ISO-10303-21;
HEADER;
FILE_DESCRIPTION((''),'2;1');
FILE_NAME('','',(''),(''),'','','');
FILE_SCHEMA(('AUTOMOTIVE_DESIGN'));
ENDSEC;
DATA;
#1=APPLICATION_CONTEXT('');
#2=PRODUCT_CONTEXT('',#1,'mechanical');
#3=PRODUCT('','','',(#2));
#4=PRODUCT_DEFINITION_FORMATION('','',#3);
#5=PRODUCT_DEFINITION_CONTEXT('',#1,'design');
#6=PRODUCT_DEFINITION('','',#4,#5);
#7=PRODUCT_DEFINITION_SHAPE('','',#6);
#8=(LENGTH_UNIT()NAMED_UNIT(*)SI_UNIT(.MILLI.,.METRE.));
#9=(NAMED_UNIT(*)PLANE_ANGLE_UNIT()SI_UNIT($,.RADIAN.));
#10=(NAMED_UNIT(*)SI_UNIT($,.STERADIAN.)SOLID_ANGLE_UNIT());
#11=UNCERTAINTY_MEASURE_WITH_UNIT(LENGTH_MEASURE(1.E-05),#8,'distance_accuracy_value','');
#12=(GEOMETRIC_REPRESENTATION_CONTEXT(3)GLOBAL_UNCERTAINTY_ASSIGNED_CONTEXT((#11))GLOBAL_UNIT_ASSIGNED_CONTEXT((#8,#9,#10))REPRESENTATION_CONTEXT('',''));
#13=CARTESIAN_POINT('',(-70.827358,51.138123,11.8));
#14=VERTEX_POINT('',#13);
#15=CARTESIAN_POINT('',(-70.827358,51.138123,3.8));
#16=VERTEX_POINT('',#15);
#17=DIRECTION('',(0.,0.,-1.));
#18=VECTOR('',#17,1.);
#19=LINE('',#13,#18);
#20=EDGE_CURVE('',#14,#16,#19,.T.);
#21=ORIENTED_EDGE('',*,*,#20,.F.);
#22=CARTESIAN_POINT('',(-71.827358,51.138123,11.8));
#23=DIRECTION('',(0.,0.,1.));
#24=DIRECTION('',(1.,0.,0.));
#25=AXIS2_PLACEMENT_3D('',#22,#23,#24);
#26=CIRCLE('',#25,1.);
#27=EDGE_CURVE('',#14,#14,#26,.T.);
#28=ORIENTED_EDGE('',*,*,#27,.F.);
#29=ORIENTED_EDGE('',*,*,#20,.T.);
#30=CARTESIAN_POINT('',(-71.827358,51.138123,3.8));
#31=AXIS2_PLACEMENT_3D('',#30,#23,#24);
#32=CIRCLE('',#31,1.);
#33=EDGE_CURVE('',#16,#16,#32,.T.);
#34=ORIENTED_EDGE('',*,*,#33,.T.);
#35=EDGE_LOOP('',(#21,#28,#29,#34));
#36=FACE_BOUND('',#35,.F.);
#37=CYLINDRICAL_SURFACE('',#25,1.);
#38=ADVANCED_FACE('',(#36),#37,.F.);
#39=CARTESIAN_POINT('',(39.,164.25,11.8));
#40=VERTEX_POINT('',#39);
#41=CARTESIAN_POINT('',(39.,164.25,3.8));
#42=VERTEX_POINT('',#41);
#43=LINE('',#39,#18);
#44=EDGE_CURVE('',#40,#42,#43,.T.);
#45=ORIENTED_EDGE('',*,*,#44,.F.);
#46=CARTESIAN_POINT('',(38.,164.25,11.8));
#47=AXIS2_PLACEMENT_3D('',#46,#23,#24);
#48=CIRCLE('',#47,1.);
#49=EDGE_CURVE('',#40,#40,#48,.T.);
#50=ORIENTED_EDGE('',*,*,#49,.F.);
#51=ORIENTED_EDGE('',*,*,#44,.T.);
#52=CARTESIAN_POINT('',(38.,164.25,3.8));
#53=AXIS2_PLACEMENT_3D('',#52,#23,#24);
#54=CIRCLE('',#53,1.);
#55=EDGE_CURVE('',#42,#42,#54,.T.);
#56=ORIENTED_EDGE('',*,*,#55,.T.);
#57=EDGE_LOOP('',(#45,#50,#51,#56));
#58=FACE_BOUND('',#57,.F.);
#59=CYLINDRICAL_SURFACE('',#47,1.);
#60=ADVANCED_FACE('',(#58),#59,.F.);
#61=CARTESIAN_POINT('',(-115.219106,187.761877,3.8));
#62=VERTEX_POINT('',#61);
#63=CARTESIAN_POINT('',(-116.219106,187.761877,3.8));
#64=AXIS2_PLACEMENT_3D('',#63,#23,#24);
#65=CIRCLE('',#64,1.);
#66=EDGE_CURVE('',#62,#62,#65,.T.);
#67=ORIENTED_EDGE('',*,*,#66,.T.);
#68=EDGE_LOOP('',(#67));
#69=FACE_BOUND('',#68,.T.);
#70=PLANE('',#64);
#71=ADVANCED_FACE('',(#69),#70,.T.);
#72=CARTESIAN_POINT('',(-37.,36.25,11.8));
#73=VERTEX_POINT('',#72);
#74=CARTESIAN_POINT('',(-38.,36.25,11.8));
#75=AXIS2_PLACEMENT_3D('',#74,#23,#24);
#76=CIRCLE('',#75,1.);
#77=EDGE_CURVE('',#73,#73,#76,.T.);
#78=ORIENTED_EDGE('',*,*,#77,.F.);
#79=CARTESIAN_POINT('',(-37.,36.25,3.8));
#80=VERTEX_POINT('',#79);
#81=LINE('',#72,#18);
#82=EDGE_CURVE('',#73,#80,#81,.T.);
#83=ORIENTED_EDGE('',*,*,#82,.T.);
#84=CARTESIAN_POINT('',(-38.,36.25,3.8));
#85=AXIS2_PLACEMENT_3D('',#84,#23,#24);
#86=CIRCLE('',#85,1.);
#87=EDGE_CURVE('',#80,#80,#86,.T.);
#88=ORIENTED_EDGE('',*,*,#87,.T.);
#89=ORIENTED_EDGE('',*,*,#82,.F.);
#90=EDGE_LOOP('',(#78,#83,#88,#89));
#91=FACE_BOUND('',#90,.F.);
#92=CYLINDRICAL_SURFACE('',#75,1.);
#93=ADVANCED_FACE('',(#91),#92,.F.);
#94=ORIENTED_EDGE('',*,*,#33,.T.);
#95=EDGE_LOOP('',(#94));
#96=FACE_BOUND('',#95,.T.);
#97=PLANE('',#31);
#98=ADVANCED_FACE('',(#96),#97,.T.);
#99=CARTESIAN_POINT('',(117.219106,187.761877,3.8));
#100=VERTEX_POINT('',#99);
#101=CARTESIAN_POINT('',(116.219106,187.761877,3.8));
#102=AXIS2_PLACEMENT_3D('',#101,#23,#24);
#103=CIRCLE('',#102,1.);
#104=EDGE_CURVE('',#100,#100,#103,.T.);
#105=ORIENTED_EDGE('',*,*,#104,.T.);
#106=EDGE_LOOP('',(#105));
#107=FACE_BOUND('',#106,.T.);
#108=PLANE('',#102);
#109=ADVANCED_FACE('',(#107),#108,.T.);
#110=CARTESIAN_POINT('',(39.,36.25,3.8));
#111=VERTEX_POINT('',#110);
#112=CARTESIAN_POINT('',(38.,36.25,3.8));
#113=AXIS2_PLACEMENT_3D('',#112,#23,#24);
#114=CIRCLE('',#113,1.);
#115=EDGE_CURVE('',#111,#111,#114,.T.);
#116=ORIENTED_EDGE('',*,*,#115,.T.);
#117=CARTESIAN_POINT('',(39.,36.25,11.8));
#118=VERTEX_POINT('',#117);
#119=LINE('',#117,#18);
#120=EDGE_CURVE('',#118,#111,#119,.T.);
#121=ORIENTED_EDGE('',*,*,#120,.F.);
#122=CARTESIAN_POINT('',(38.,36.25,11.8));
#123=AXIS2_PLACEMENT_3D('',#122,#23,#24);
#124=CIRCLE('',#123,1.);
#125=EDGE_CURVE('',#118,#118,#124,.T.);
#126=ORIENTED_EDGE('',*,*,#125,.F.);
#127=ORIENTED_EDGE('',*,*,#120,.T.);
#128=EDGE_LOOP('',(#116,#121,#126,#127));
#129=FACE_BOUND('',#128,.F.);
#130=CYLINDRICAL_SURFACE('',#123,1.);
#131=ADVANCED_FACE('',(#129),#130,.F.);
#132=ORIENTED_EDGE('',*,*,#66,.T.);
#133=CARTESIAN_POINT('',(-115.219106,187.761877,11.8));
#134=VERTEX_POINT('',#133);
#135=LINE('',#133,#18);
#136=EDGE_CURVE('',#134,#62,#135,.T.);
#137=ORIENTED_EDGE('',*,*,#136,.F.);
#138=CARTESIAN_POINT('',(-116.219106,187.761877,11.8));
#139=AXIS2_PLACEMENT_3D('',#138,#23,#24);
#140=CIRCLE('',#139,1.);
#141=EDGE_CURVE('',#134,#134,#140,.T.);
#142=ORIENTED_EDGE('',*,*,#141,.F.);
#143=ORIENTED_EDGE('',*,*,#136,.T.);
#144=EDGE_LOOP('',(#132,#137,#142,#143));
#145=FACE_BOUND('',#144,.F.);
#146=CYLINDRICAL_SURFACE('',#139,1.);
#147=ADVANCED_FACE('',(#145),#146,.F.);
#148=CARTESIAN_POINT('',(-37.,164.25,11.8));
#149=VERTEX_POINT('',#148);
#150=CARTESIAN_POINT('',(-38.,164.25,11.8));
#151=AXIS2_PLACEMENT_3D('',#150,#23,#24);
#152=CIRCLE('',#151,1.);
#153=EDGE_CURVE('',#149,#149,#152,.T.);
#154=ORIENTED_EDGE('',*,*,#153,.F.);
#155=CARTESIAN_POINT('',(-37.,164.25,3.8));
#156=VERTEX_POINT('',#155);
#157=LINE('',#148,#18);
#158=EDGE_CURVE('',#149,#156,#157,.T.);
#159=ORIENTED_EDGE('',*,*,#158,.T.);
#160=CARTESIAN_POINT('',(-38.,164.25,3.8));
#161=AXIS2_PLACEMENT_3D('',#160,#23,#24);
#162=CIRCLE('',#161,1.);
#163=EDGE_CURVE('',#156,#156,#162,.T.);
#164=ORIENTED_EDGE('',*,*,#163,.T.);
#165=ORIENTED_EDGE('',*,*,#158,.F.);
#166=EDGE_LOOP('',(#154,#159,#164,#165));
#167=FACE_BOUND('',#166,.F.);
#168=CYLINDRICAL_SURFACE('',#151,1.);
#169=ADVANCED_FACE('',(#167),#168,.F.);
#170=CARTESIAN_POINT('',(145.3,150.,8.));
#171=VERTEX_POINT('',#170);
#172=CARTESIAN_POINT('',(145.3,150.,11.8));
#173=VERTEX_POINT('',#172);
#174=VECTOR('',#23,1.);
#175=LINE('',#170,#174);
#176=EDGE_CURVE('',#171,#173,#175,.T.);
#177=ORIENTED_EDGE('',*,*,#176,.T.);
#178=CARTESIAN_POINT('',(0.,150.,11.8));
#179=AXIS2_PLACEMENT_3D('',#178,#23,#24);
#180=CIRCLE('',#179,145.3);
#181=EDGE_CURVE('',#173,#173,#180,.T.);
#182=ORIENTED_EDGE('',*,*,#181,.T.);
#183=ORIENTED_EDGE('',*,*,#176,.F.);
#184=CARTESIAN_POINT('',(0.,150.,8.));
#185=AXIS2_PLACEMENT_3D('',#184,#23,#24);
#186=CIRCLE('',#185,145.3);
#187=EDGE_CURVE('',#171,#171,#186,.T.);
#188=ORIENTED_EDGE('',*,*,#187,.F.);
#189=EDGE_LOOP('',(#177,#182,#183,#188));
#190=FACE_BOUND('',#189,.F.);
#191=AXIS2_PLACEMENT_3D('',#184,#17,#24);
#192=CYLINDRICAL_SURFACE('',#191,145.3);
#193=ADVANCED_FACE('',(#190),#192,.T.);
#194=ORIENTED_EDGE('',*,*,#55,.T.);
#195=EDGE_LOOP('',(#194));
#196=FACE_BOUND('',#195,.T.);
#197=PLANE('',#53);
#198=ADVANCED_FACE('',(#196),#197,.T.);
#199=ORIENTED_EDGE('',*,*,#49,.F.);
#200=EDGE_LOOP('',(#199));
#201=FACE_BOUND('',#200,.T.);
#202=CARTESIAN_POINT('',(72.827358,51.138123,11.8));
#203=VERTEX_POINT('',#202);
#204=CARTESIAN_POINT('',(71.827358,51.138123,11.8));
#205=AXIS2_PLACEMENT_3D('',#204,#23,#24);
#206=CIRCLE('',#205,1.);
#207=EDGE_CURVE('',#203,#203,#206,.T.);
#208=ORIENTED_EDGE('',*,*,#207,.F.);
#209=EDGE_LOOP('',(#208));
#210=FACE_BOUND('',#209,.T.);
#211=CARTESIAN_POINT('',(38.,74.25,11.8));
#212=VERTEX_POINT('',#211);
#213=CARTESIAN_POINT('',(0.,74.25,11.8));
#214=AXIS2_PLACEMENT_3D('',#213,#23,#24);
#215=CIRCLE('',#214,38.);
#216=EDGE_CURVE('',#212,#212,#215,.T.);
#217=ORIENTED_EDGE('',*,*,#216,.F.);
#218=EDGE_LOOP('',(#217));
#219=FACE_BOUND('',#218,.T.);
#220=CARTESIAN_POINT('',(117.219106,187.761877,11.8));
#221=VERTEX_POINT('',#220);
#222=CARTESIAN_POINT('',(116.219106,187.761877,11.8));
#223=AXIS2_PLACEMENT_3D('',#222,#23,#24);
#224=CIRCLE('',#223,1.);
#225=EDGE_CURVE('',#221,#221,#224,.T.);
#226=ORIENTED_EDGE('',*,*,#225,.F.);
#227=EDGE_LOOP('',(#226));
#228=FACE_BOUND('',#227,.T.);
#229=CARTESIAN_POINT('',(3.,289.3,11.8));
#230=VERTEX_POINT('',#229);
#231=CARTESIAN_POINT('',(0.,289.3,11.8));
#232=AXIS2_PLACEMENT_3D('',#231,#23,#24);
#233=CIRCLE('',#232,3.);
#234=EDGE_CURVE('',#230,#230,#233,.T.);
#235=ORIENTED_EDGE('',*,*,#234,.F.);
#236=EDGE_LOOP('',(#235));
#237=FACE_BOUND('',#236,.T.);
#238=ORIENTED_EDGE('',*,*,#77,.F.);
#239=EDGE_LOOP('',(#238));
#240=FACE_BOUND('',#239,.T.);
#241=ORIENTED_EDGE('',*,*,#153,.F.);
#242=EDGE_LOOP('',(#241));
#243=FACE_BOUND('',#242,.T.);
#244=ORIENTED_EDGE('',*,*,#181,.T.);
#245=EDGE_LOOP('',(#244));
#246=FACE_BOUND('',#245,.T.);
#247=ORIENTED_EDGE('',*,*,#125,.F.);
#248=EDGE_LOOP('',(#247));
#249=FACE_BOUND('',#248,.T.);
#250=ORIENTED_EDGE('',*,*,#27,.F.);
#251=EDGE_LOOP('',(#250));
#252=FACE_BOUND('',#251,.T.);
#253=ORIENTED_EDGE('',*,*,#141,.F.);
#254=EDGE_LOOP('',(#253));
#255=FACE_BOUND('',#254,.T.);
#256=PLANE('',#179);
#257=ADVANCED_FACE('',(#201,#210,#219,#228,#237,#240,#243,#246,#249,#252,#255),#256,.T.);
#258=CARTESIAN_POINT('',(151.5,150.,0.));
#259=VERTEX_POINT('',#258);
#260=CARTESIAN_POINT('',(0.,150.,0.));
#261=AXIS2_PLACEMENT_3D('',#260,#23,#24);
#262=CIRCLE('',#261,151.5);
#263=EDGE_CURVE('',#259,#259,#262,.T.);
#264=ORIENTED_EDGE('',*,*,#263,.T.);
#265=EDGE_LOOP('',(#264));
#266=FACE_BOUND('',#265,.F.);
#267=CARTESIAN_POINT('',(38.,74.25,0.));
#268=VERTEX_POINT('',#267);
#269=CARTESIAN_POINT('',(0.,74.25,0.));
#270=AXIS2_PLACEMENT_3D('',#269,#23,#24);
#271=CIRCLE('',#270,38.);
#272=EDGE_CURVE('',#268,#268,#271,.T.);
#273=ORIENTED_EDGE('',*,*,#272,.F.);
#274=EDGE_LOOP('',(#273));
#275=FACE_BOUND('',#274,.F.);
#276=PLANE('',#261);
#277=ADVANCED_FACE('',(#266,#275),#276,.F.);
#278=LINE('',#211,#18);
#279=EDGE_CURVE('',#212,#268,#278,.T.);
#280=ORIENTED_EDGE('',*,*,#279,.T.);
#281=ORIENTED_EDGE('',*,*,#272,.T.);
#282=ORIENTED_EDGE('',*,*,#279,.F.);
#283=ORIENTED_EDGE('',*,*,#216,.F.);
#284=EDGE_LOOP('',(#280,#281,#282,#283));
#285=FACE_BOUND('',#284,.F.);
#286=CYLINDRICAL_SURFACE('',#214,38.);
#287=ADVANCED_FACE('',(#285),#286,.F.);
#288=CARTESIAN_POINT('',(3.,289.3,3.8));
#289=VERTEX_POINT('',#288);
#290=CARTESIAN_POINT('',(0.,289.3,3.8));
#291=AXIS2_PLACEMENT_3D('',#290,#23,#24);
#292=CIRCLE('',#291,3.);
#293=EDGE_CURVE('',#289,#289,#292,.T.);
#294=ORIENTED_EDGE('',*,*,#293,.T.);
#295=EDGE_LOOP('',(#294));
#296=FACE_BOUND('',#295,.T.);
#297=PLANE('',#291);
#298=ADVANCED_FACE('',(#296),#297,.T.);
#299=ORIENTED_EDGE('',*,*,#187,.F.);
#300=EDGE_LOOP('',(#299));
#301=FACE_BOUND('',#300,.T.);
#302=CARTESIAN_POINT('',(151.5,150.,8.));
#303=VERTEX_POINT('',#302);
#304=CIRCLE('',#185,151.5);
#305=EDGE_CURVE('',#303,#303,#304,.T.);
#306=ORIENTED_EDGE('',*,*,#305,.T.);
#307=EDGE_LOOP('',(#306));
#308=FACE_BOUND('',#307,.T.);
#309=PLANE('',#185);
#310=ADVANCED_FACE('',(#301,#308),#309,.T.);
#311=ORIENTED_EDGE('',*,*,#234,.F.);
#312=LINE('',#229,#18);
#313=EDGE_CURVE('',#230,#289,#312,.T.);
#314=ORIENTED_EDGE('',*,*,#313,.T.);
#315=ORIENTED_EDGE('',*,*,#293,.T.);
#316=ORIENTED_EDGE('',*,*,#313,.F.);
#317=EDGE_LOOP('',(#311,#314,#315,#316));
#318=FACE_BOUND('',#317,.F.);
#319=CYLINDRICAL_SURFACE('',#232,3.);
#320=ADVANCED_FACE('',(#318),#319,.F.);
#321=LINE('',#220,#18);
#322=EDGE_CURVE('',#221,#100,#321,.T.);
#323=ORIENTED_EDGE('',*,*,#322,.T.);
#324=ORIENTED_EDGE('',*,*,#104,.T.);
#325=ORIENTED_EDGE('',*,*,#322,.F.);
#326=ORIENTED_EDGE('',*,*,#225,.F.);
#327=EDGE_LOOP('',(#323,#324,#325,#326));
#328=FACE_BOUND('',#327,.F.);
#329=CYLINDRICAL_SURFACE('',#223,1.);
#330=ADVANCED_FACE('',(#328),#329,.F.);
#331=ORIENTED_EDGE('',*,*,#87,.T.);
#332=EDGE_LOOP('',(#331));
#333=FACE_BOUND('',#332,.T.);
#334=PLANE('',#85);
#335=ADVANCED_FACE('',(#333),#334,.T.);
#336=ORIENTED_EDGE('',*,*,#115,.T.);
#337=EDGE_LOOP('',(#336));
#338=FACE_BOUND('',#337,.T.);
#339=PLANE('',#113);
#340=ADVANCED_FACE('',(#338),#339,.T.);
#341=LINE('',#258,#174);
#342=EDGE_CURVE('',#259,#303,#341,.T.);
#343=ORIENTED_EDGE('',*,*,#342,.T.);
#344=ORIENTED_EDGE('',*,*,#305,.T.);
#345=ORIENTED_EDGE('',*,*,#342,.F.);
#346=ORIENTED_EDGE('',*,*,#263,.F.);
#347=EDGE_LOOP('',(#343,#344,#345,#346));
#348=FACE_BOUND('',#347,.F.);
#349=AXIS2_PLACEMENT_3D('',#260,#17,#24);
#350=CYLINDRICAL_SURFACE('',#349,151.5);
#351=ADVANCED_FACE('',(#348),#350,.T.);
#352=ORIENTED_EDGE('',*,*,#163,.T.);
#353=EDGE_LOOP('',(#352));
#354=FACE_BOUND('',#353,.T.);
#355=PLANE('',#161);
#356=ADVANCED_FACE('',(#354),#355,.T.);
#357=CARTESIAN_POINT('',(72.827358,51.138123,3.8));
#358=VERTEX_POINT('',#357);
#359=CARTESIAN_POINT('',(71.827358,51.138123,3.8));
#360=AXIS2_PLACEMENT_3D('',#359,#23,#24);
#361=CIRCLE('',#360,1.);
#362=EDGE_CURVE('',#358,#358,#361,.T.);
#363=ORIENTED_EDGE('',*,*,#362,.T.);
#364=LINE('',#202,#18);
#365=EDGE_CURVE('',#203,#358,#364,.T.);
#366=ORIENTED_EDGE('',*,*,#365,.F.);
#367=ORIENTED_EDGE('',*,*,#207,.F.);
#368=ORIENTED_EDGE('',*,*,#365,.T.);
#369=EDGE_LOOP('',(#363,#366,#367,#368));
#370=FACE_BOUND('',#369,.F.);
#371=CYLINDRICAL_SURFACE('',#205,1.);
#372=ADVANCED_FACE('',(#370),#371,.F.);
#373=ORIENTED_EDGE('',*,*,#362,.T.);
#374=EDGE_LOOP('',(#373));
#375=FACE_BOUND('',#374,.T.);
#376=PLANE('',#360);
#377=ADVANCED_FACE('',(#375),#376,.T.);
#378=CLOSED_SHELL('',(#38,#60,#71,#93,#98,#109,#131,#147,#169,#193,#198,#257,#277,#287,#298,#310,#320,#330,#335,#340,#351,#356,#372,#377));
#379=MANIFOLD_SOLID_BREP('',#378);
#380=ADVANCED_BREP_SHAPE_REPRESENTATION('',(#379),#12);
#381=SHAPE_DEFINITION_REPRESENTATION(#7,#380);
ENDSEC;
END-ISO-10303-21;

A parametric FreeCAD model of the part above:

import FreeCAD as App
import Part
import Sketcher
from FreeCAD import Vector

doc = App.newDocument("Part")
body = doc.addObject("PartDesign::Body", "Body")

sketch1 = body.newObject("Sketcher::SketchObject", "Sketch")
sketch1.AttachmentSupport = (doc.getObject("XY_Plane"), [""])
sketch1.MapMode = "FlatFace"
sketch1.addGeometry(Part.Circle(Vector(0, 0, 0), Vector(0, 0, 1), 152), False)
sketch1.addConstraint(Sketcher.Constraint("Coincident", 0, 3, -1, 1))
sketch1.addConstraint(Sketcher.Constraint("Diameter", 0, 303.0))
pad1 = body.newObject("PartDesign::Pad", "Pad")
pad1.Profile = sketch1
pad1.Length = 8

sketch2 = body.newObject("Sketcher::SketchObject", "Sketch001")
sketch2.AttachmentSupport = (doc.getObject("XY_Plane"), [""])
sketch2.MapMode = "FlatFace"
sketch2.AttachmentOffset = App.Placement(Vector(0, 0, 8), App.Rotation())
sketch2.addGeometry(Part.Circle(Vector(0, 0, 0), Vector(0, 0, 1), 145), False)
sketch2.addConstraint(Sketcher.Constraint("Coincident", 0, 3, -1, 1))
sketch2.addConstraint(Sketcher.Constraint("Diameter", 0, 290.6))
pad2 = body.newObject("PartDesign::Pad", "Pad001")
pad2.Profile = sketch2
pad2.Length = 3.8

sketch3 = body.newObject("Sketcher::SketchObject", "Sketch002")
sketch3.AttachmentSupport = (doc.getObject("XY_Plane"), [""])
sketch3.MapMode = "FlatFace"
sketch3.AttachmentOffset = App.Placement(Vector(0, 0, 11.8), App.Rotation())
sketch3.addGeometry(Part.Circle(Vector(-38, -113.8, 0), Vector(0, 0, 1), 1), False)
sketch3.addGeometry(Part.Circle(Vector(-71.8, -98.9, 0), Vector(0, 0, 1), 1), False)
sketch3.addGeometry(Part.Circle(Vector(38, -113.8, 0), Vector(0, 0, 1), 1), False)
sketch3.addGeometry(Part.Circle(Vector(71.8, -98.9, 0), Vector(0, 0, 1), 1), False)
sketch3.addGeometry(Part.Circle(Vector(38, 14.2, 0), Vector(0, 0, 1), 1), False)
sketch3.addGeometry(Part.Circle(Vector(-38, 14.2, 0), Vector(0, 0, 1), 1), False)
sketch3.addGeometry(Part.Circle(Vector(-116.2, 37.8, 0), Vector(0, 0, 1), 1), False)
sketch3.addGeometry(Part.Circle(Vector(116.2, 37.8, 0), Vector(0, 0, 1), 1), False)
sketch3.addGeometry(Part.Circle(Vector(0, 139.3, 0), Vector(0, 0, 1), 3), False)
sketch3.addConstraint(Sketcher.Constraint("Equal", 0, 1))
sketch3.addConstraint(Sketcher.Constraint("Equal", 1, 2))
sketch3.addConstraint(Sketcher.Constraint("Equal", 2, 3))
sketch3.addConstraint(Sketcher.Constraint("Equal", 3, 4))
sketch3.addConstraint(Sketcher.Constraint("Equal", 4, 5))
sketch3.addConstraint(Sketcher.Constraint("Equal", 5, 6))
sketch3.addConstraint(Sketcher.Constraint("Equal", 6, 7))
sketch3.addConstraint(Sketcher.Constraint("Symmetric", 0, 3, 2, 3, -2))
sketch3.addConstraint(Sketcher.Constraint("Symmetric", 1, 3, 3, 3, -2))
sketch3.addConstraint(Sketcher.Constraint("Symmetric", 4, 3, 5, 3, -2))
sketch3.addConstraint(Sketcher.Constraint("Symmetric", 6, 3, 7, 3, -2))
sketch3.addConstraint(Sketcher.Constraint("PointOnObject", 8, 3, -2))
sketch3.addConstraint(Sketcher.Constraint("Vertical", 2, 3, 4, 3))
sketch3.addConstraint(Sketcher.Constraint("Diameter", 0, 2.0))
sketch3.addConstraint(Sketcher.Constraint("Diameter", 8, 6.0))
sketch3.addConstraint(Sketcher.Constraint("DistanceX", 0, 3, -1, 1, 38.0))
sketch3.addConstraint(Sketcher.Constraint("DistanceY", 2, 3, 4, 3, 128.0))
sketch3.addConstraint(Sketcher.Constraint("DistanceY", -1, 1, 8, 3, 139.3))
sketch3.addConstraint(Sketcher.Constraint("DistanceY", 0, 3, -1, 1, 113.75))
sketch3.addConstraint(Sketcher.Constraint("DistanceX", 1, 3, -1, 1, 71.827358))
sketch3.addConstraint(Sketcher.Constraint("DistanceY", 1, 3, -1, 1, 98.861877))
sketch3.addConstraint(Sketcher.Constraint("DistanceX", 6, 3, -1, 1, 116.219106))
sketch3.addConstraint(Sketcher.Constraint("DistanceY", -1, 1, 6, 3, 37.761877))
pocket1 = body.newObject("PartDesign::Pocket", "Pocket")
pocket1.Profile = sketch3
pocket1.Length = 8

sketch4 = body.newObject("Sketcher::SketchObject", "Sketch003")
sketch4.AttachmentSupport = (doc.getObject("XY_Plane"), [""])
sketch4.MapMode = "FlatFace"
sketch4.AttachmentOffset = App.Placement(Vector(0, 0, 11.8), App.Rotation())
sketch4.addGeometry(Part.Circle(Vector(0, -76, 0), Vector(0, 0, 1), 38), False)
sketch4.addConstraint(Sketcher.Constraint("PointOnObject", 0, 3, -2))
sketch4.addConstraint(Sketcher.Constraint("Diameter", 0, 76.0))
sketch4.addConstraint(Sketcher.Constraint("DistanceY", 0, 3, -1, 1, 75.75))
pocket2 = body.newObject("PartDesign::Pocket", "Pocket001")
pocket2.Profile = sketch4
pocket2.Type = "ThroughAll"
body2 = doc.addObject("PartDesign::Body", "Body001")
doc.recompute()

body.Placement = App.Placement(Vector(0, 150, 0), App.Rotation(Vector(0, 0, 1), 0))
boolean = body2.newObject("PartDesign::Boolean", "Boolean")
boolean.Type = "Fuse"
boolean.addObjects([body])

doc.recompute()
